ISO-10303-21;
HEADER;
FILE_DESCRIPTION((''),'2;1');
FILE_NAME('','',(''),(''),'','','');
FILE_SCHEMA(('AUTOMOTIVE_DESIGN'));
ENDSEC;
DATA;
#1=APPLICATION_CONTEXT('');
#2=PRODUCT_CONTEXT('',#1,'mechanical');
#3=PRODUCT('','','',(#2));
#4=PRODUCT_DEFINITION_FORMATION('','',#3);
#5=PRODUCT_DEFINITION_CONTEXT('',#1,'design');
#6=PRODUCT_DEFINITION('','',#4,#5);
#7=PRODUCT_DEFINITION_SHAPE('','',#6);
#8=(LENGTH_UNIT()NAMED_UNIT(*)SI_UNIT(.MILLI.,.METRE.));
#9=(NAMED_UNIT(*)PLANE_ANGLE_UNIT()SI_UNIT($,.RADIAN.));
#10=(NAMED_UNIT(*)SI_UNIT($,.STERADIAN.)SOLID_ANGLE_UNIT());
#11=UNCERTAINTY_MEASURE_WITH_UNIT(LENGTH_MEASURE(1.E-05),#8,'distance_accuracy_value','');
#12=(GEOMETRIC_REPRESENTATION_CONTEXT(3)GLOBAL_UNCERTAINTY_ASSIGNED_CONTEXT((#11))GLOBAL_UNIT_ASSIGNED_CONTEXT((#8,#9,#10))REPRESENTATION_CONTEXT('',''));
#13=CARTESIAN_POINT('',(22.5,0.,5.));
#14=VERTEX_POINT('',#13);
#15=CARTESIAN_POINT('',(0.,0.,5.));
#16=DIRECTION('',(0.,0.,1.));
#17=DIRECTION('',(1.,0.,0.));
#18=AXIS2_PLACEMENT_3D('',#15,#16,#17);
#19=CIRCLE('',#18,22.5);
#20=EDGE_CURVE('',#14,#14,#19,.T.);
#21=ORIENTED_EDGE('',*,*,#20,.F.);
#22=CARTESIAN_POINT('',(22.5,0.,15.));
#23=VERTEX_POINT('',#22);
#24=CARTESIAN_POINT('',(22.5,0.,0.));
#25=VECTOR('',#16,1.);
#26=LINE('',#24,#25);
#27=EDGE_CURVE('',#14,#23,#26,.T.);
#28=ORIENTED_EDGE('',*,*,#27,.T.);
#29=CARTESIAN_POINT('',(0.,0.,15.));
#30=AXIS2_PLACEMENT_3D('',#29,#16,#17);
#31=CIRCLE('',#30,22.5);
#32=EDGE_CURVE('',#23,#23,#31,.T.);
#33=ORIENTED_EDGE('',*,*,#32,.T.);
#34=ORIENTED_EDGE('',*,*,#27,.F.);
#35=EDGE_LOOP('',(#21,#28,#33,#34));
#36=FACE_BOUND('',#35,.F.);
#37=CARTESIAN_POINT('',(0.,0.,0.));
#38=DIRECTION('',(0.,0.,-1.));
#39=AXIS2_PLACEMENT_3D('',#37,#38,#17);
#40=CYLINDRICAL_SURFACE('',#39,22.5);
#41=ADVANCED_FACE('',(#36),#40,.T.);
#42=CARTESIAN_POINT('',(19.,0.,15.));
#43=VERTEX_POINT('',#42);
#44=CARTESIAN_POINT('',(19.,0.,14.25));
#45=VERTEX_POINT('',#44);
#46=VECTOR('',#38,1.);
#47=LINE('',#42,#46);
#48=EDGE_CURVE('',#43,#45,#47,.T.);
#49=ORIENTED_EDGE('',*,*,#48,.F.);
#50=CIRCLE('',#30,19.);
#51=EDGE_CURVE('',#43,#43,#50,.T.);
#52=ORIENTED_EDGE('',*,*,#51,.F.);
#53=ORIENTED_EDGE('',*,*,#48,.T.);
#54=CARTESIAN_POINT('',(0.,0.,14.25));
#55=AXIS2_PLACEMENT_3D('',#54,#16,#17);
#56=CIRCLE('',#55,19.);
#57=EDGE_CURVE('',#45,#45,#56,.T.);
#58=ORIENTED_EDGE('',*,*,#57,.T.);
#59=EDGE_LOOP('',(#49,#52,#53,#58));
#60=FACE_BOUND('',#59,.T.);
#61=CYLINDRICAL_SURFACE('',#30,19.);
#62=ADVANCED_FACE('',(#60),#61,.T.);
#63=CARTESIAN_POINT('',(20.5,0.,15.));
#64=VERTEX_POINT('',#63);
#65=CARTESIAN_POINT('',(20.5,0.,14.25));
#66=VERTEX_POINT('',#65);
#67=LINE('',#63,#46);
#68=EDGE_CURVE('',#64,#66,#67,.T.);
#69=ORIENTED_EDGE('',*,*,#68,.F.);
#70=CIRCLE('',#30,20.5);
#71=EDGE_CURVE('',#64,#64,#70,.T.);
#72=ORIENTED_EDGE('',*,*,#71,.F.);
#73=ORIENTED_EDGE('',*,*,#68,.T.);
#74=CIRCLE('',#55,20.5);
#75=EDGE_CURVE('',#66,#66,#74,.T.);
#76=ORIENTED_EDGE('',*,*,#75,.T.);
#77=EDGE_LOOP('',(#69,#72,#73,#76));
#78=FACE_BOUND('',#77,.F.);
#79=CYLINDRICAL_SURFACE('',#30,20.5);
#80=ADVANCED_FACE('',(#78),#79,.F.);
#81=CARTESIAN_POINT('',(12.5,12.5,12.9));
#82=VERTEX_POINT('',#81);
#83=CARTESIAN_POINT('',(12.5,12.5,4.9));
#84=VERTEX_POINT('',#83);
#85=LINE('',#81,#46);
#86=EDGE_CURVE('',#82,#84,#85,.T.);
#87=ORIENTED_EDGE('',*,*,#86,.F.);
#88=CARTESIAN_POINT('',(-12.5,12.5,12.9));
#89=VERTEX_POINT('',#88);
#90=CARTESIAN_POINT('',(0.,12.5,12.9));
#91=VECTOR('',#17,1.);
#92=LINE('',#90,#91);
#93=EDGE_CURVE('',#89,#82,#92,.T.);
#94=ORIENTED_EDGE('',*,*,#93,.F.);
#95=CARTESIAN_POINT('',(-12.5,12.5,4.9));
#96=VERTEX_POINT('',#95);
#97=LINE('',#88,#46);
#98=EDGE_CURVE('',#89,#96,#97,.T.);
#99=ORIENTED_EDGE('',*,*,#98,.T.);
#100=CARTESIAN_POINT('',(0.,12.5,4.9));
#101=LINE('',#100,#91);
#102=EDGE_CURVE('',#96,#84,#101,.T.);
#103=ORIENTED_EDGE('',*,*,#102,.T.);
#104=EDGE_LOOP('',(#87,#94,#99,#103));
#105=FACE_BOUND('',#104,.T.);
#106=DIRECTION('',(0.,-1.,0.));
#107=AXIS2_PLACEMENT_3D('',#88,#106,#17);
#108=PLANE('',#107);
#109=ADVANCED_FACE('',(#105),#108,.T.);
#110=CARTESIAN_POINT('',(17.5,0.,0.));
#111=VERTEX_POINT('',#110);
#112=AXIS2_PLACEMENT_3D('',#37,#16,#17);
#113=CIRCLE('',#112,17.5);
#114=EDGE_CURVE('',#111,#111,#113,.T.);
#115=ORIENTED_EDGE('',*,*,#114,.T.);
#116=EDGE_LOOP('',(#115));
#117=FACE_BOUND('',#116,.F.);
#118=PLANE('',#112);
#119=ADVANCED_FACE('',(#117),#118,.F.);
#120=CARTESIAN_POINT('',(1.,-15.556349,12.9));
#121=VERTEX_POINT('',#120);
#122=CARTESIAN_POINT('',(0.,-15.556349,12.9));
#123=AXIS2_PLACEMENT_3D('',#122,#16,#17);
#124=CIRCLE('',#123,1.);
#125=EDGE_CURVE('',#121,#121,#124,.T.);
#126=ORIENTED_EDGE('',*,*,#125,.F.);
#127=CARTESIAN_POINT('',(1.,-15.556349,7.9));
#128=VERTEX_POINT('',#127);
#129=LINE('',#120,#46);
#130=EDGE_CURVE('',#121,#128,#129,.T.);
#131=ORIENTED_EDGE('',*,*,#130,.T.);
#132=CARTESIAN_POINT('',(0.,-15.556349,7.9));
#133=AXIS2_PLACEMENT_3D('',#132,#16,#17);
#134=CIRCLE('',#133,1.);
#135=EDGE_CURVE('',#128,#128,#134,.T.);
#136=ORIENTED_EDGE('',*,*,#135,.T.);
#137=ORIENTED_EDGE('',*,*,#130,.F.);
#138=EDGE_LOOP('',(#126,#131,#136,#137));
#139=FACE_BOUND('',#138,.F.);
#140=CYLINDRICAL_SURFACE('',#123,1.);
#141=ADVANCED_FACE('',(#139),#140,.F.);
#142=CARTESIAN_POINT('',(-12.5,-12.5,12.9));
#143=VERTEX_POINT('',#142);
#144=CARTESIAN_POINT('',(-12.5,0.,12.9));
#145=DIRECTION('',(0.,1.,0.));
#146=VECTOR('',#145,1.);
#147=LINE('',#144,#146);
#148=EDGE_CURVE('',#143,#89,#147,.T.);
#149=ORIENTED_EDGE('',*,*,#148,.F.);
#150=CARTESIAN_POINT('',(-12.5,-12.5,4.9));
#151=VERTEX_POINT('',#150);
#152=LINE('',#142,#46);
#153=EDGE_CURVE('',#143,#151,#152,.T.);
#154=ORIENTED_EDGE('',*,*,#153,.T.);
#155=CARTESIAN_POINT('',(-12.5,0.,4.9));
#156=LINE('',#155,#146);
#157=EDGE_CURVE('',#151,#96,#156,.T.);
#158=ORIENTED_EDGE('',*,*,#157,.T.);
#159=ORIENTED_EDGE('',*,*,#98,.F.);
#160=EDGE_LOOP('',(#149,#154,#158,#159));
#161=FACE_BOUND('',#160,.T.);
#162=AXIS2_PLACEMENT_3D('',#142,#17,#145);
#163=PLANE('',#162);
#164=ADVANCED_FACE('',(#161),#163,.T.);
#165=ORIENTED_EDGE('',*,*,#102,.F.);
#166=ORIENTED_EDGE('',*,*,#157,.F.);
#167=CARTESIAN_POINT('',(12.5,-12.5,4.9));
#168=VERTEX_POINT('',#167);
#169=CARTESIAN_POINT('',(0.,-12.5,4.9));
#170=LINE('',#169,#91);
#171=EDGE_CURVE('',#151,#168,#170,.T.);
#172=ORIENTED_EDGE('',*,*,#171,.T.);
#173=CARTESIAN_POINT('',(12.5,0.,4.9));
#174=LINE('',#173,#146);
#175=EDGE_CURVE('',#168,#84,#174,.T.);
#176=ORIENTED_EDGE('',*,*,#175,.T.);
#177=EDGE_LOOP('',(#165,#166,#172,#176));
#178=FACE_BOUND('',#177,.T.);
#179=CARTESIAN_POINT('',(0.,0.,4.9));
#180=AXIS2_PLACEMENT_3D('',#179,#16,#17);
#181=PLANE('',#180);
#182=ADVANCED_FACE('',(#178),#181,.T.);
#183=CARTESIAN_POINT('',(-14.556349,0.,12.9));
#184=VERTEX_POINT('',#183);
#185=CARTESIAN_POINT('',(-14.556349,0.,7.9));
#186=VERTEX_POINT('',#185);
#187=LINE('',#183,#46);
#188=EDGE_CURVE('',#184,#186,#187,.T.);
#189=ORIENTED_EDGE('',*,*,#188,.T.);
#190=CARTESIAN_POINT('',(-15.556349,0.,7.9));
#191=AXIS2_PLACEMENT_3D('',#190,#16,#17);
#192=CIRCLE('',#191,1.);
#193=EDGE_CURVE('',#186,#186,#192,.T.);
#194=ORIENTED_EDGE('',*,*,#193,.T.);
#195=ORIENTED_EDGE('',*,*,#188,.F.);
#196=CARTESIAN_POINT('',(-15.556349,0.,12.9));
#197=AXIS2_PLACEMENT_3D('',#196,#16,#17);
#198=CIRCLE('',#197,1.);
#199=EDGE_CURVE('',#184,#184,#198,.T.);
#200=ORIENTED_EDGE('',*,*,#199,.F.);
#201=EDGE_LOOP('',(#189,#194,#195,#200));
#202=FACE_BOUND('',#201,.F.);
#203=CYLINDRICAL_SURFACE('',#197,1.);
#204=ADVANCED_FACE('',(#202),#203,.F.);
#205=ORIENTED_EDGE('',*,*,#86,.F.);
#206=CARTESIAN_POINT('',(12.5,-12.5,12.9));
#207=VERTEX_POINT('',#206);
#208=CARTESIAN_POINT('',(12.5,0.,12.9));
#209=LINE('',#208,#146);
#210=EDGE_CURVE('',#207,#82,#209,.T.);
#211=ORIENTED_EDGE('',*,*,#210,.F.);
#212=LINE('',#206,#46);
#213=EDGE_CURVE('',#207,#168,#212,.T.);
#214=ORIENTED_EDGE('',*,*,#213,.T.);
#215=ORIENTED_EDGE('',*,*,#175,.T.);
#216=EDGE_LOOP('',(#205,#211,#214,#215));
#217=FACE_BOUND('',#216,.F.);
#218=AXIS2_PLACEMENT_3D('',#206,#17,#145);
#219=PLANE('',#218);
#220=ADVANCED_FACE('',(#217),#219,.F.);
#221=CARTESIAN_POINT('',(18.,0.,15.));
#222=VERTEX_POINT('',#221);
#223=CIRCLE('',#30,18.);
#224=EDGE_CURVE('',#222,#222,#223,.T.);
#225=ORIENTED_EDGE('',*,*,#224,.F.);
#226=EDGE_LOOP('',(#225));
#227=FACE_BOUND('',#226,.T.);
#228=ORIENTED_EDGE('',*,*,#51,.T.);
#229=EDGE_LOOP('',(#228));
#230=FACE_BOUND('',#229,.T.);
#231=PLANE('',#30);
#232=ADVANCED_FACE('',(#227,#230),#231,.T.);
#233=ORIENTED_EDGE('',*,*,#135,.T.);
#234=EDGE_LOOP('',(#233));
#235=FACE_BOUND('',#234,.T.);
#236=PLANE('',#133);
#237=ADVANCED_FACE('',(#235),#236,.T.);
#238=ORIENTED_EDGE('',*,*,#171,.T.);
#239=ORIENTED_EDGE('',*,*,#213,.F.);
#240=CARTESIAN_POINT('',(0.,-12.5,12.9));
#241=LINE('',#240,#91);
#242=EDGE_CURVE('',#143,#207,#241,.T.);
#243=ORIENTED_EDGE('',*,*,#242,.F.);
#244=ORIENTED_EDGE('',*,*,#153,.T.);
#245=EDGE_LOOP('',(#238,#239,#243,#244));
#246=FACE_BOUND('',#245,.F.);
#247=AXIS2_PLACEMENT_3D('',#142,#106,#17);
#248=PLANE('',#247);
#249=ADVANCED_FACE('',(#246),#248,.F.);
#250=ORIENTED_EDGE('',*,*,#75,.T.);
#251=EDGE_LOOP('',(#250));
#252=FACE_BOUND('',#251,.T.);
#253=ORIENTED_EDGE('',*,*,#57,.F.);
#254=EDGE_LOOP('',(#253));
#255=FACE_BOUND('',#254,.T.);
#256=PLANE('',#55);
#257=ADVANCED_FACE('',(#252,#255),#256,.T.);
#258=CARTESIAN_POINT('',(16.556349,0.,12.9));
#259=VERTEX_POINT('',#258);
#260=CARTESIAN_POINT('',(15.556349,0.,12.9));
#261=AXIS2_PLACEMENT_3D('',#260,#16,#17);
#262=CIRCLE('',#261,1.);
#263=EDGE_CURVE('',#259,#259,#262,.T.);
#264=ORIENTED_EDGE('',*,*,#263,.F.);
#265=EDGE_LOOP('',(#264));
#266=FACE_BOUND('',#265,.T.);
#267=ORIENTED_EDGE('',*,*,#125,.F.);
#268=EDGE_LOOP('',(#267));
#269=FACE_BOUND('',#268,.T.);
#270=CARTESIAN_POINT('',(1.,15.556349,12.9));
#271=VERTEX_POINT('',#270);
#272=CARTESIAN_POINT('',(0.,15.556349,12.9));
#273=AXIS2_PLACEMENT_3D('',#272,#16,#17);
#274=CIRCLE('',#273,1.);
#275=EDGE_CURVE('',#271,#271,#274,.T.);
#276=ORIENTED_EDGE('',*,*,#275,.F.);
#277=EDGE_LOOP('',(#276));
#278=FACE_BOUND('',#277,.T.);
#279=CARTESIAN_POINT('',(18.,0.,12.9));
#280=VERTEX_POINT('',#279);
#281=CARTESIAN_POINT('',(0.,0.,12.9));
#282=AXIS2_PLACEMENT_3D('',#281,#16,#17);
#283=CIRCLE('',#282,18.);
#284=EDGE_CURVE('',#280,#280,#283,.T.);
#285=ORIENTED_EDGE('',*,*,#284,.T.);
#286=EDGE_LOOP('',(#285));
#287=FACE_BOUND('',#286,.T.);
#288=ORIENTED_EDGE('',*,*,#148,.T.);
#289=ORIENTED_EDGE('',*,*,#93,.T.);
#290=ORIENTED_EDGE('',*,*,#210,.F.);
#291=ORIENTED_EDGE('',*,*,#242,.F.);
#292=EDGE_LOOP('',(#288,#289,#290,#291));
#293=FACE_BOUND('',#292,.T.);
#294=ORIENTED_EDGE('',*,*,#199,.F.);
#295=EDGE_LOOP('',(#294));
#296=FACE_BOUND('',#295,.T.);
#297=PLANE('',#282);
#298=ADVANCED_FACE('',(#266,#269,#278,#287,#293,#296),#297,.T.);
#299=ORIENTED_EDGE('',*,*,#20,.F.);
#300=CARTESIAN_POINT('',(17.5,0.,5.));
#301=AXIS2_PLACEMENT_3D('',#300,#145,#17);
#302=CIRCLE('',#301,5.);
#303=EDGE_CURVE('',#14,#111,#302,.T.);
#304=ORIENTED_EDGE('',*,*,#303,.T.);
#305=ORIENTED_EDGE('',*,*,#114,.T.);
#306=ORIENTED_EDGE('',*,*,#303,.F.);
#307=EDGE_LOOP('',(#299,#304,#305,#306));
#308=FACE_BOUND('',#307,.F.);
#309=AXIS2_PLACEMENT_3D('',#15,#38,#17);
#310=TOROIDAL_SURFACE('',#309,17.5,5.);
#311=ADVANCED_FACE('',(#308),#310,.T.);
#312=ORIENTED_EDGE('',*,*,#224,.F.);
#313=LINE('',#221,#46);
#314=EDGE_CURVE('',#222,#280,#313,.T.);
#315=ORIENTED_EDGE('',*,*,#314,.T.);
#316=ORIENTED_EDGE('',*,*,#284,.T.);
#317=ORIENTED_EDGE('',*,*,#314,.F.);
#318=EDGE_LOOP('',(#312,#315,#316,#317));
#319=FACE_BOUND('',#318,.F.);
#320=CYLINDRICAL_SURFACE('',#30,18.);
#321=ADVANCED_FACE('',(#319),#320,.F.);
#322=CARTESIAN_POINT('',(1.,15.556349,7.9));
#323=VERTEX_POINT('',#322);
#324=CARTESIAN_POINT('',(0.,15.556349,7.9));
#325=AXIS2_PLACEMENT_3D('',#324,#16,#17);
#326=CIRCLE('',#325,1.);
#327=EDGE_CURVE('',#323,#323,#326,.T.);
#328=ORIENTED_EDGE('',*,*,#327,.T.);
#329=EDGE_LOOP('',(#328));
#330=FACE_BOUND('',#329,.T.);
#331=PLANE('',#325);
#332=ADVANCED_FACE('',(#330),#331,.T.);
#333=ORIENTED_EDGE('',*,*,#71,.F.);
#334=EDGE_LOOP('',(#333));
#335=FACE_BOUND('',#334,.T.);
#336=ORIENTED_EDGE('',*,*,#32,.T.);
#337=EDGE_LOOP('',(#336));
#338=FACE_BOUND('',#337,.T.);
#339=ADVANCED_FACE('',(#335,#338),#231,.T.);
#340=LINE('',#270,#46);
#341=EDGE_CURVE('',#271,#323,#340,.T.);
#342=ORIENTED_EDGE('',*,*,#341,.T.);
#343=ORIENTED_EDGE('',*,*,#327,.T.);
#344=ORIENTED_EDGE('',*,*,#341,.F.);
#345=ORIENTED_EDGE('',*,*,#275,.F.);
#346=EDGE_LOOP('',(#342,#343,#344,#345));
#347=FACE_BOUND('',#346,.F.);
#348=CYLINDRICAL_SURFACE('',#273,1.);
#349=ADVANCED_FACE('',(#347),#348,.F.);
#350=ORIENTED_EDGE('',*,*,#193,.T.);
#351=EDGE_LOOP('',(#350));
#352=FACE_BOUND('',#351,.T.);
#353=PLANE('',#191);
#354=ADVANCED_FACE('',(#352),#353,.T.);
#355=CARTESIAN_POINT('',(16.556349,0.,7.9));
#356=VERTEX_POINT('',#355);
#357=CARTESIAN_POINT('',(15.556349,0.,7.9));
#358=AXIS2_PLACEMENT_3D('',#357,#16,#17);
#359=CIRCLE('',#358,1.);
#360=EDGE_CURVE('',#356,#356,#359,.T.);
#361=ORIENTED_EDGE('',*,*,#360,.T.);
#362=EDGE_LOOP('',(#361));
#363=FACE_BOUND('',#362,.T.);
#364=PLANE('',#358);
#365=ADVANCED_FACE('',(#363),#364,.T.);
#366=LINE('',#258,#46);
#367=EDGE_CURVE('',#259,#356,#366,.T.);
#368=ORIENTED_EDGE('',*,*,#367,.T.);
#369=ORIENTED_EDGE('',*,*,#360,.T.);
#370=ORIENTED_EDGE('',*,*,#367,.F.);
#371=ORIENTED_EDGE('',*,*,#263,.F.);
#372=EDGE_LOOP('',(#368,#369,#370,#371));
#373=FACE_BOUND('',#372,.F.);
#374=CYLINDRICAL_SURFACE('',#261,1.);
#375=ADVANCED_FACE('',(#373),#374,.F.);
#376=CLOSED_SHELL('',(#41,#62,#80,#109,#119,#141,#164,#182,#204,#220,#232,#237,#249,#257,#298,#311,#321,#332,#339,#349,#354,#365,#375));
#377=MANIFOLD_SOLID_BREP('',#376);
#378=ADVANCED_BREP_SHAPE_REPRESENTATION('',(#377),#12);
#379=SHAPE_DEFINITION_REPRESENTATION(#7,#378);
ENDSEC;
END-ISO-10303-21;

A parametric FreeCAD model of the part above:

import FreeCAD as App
import Part
import Sketcher

V = App.Vector
Q = App.Units.Quantity


def edges_at(feature, points):
    """Names of the edges that pass closest to the given points."""
    edges = feature.Shape.Edges
    near = lambda p: min(range(len(edges)), key=lambda i: edges[i].distToShape(Part.Vertex(*p))[0])
    return sorted({f"Edge{near(p) + 1}" for p in points})

doc = App.newDocument("Part")
body = doc.addObject("PartDesign::Body", "Body")

sketch1 = doc.addObject("Sketcher::SketchObject", "Sketch")
body.addObject(sketch1)
sketch1.AttachmentSupport = (doc.XY_Plane, [""])
sketch1.MapMode = "FlatFace"
sketch1.addGeometry(Part.Circle(V(0, 0, 0), V(0, 0, 1), 22), False)
sketch1.addConstraint(Sketcher.Constraint("Coincident", 0, 3, -1, 1))
sketch1.addConstraint(Sketcher.Constraint("Diameter", 0, Q("45 mm")))
pad1 = doc.addObject("PartDesign::Pad", "Pad")
body.addObject(pad1)
pad1.Profile = sketch1
pad1.Length = 15

sketch2 = doc.addObject("Sketcher::SketchObject", "Sketch001")
body.addObject(sketch2)
sketch2.AttachmentSupport = (doc.XY_Plane, [""])
sketch2.MapMode = "FlatFace"
sketch2.AttachmentOffset = App.Placement(V(0, 0, 15), App.Rotation())
sketch2.addGeometry(Part.Circle(V(0, 0, 0), V(0, 0, 1), 18), False)
sketch2.addConstraint(Sketcher.Constraint("Coincident", 0, 3, -1, 1))
sketch2.addConstraint(Sketcher.Constraint("Diameter", 0, Q("36 mm")))
pocket1 = doc.addObject("PartDesign::Pocket", "Pocket")
body.addObject(pocket1)
pocket1.Profile = sketch2
pocket1.Length = 2.1

sketch3 = doc.addObject("Sketcher::SketchObject", "Sketch002")
body.addObject(sketch3)
sketch3.AttachmentSupport = (doc.XY_Plane, [""])
sketch3.MapMode = "FlatFace"
sketch3.AttachmentOffset = App.Placement(V(0, 0, 12.9), App.Rotation())
sketch3.addGeometry(Part.LineSegment(V(-12, 12, 0), V(-12, -12, 0)), False)
sketch3.addGeometry(Part.LineSegment(V(-12, -12, 0), V(12, -12, 0)), False)
sketch3.addGeometry(Part.LineSegment(V(12, -12, 0), V(12, 12, 0)), False)
sketch3.addGeometry(Part.LineSegment(V(12, 12, 0), V(-12, 12, 0)), False)
sketch3.addConstraint(Sketcher.Constraint("Coincident", 0, 2, 1, 1))
sketch3.addConstraint(Sketcher.Constraint("Coincident", 1, 2, 2, 1))
sketch3.addConstraint(Sketcher.Constraint("Coincident", 2, 2, 3, 1))
sketch3.addConstraint(Sketcher.Constraint("Coincident", 3, 2, 0, 1))
sketch3.addConstraint(Sketcher.Constraint("Vertical", 0))
sketch3.addConstraint(Sketcher.Constraint("Horizontal", 1))
sketch3.addConstraint(Sketcher.Constraint("Vertical", 2))
sketch3.addConstraint(Sketcher.Constraint("Horizontal", 3))
sketch3.addConstraint(Sketcher.Constraint("Symmetric", 0, 2, 2, 2, -1, 1))
sketch3.addConstraint(Sketcher.Constraint("Equal", 3, 0))
sketch3.addConstraint(Sketcher.Constraint("DistanceX", 1, 1, 1, 2, Q("25 mm")))
pocket2 = doc.addObject("PartDesign::Pocket", "Pocket001")
body.addObject(pocket2)
pocket2.Profile = sketch3
pocket2.Length = 8
doc.recompute()

fillet = doc.addObject("PartDesign::Fillet", "Fillet")
body.addObject(fillet)
fillet.Base = (pocket2, edges_at(pocket2, [(-22.5, 0, 0)]))
fillet.Radius = 5

sketch4 = doc.addObject("Sketcher::SketchObject", "Sketch003")
body.addObject(sketch4)
sketch4.AttachmentSupport = (doc.XY_Plane, [""])
sketch4.MapMode = "FlatFace"
sketch4.AttachmentOffset = App.Placement(V(0, 0, 12.9), App.Rotation())
sketch4.addGeometry(Part.Circle(V(0, 15.6, 0), V(0, 0, 1), 1), False)
sketch4.addGeometry(Part.Circle(V(15.6, 0, 0), V(0, 0, 1), 1), False)
sketch4.addGeometry(Part.Circle(V(-15.6, 0, 0), V(0, 0, 1), 1), False)
sketch4.addGeometry(Part.Circle(V(0, -15.6, 0), V(0, 0, 1), 1), False)
sketch4.addConstraint(Sketcher.Constraint("Equal", 0, 1))
sketch4.addConstraint(Sketcher.Constraint("Equal", 1, 2))
sketch4.addConstraint(Sketcher.Constraint("Equal", 2, 3))
sketch4.addConstraint(Sketcher.Constraint("Symmetric", 1, 3, 2, 3, -1, 1))
sketch4.addConstraint(Sketcher.Constraint("Symmetric", 0, 3, 3, 3, -1, 1))
sketch4.addConstraint(Sketcher.Constraint("PointOnObject", 0, 3, -2))
sketch4.addConstraint(Sketcher.Constraint("PointOnObject", 1, 3, -1))
sketch4.addConstraint(Sketcher.Constraint("Diameter", 0, Q("2 mm")))
sketch4.addConstraint(Sketcher.Constraint("DistanceX", 2, 3, 1, 3, Q("31.112698 mm")))
sketch4.addConstraint(Sketcher.Constraint("DistanceY", 3, 3, 0, 3, Q("31.112698 mm")))
pocket3 = doc.addObject("PartDesign::Pocket", "Pocket002")
body.addObject(pocket3)
pocket3.Profile = sketch4
pocket3.Length = 5

sketch5 = doc.addObject("Sketcher::SketchObject", "Sketch004")
body.addObject(sketch5)
sketch5.AttachmentSupport = (doc.XY_Plane, [""])
sketch5.MapMode = "FlatFace"
sketch5.AttachmentOffset = App.Placement(V(0, 0, 15), App.Rotation())
sketch5.addGeometry(Part.Circle(V(0, 0, 0), V(0, 0, 1), 20), False)
sketch5.addGeometry(Part.Circle(V(0, 0, 0), V(0, 0, 1), 19), False)
sketch5.addConstraint(Sketcher.Constraint("Coincident", 0, 3, -1, 1))
sketch5.addConstraint(Sketcher.Constraint("Coincident", 1, 3, -1, 1))
sketch5.addConstraint(Sketcher.Constraint("Diameter", 0, Q("41 mm")))
sketch5.addConstraint(Sketcher.Constraint("Diameter", 1, Q("38 mm")))
pocket4 = doc.addObject("PartDesign::Pocket", "Pocket003")
body.addObject(pocket4)
pocket4.Profile = sketch5
pocket4.Length = 0.75

doc.recompute()
